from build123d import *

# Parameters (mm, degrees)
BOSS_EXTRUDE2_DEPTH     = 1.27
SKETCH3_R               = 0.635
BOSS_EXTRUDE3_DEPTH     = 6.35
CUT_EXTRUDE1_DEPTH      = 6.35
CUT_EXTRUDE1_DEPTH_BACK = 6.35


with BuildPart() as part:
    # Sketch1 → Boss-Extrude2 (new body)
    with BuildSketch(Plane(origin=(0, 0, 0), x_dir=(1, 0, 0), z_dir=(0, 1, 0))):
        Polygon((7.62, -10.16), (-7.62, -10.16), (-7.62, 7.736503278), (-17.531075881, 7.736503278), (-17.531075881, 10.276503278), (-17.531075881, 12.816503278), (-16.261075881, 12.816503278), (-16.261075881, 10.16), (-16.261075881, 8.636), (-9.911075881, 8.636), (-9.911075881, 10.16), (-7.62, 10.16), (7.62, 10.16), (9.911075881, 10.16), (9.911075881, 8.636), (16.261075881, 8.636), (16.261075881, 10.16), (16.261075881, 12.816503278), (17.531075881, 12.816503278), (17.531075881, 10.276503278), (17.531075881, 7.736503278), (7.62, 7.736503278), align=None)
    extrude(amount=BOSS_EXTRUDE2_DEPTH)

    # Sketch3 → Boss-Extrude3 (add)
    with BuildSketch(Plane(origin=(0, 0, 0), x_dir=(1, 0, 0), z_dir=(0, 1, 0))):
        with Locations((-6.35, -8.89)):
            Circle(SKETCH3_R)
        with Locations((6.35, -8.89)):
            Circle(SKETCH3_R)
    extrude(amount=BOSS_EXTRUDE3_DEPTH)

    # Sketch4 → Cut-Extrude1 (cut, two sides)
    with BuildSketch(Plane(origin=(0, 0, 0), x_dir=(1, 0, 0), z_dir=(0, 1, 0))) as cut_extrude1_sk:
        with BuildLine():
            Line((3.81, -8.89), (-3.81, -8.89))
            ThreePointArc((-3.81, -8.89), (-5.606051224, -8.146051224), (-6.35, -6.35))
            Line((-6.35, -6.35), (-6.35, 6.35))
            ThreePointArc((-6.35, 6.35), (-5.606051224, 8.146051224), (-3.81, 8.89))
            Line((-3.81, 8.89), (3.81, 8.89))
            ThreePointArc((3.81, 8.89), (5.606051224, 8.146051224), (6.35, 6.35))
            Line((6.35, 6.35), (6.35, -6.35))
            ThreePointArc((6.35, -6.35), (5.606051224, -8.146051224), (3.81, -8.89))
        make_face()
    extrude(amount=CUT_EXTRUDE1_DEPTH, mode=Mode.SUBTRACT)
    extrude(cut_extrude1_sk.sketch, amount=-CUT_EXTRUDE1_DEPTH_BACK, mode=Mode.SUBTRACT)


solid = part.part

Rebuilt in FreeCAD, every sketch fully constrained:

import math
import FreeCAD as App
import Part
import Sketcher
from FreeCAD import Vector
Q = App.Units.Quantity

doc = App.newDocument("Part")
body = doc.addObject("PartDesign::Body", "Body")

sketch1 = body.newObject("Sketcher::SketchObject", "Sketch")
sketch1.AttachmentSupport = (doc.getObject("XZ_Plane"), [""])
sketch1.MapMode = "FlatFace"
sketch1.addGeometry([
    Part.LineSegment(Vector(-7.6, 10.2, 0), Vector(7.6, 10.2, 0)),
    Part.LineSegment(Vector(7.6, 10.2, 0), Vector(7.6, -7.7, 0)),
    Part.LineSegment(Vector(7.6, -7.7, 0), Vector(17.5, -7.7, 0)),
    Part.LineSegment(Vector(17.5, -7.7, 0), Vector(17.5, -12.8, 0)),
    Part.LineSegment(Vector(17.5, -12.8, 0), Vector(16.3, -12.8, 0)),
    Part.LineSegment(Vector(16.3, -12.8, 0), Vector(16.3, -8.6, 0)),
    Part.LineSegment(Vector(16.3, -8.6, 0), Vector(9.9, -8.6, 0)),
    Part.LineSegment(Vector(9.9, -8.6, 0), Vector(9.9, -10.2, 0)),
    Part.LineSegment(Vector(9.9, -10.2, 0), Vector(-9.9, -10.2, 0)),
    Part.LineSegment(Vector(-9.9, -10.2, 0), Vector(-9.9, -8.6, 0)),
    Part.LineSegment(Vector(-9.9, -8.6, 0), Vector(-16.3, -8.6, 0)),
    Part.LineSegment(Vector(-16.3, -8.6, 0), Vector(-16.3, -12.8, 0)),
    Part.LineSegment(Vector(-16.3, -12.8, 0), Vector(-17.5, -12.8, 0)),
    Part.LineSegment(Vector(-17.5, -12.8, 0), Vector(-17.5, -7.7, 0)),
    Part.LineSegment(Vector(-17.5, -7.7, 0), Vector(-7.6, -7.7, 0)),
    Part.LineSegment(Vector(-7.6, -7.7, 0), Vector(-7.6, 10.2, 0)),
], False)
sketch1.addConstraint([
    Sketcher.Constraint("Coincident", 0, 2, 1, 1),
    Sketcher.Constraint("Coincident", 1, 2, 2, 1),
    Sketcher.Constraint("Coincident", 2, 2, 3, 1),
    Sketcher.Constraint("Coincident", 3, 2, 4, 1),
    Sketcher.Constraint("Coincident", 4, 2, 5, 1),
    Sketcher.Constraint("Coincident", 5, 2, 6, 1),
    Sketcher.Constraint("Coincident", 6, 2, 7, 1),
    Sketcher.Constraint("Coincident", 7, 2, 8, 1),
    Sketcher.Constraint("Coincident", 8, 2, 9, 1),
    Sketcher.Constraint("Coincident", 9, 2, 10, 1),
    Sketcher.Constraint("Coincident", 10, 2, 11, 1),
    Sketcher.Constraint("Coincident", 11, 2, 12, 1),
    Sketcher.Constraint("Coincident", 12, 2, 13, 1),
    Sketcher.Constraint("Coincident", 13, 2, 14, 1),
    Sketcher.Constraint("Coincident", 14, 2, 15, 1),
    Sketcher.Constraint("Coincident", 15, 2, 0, 1),
    Sketcher.Constraint("Horizontal", 0),
    Sketcher.Constraint("Vertical", 1),
    Sketcher.Constraint("Horizontal", 2),
    Sketcher.Constraint("Vertical", 3),
    Sketcher.Constraint("Horizontal", 4),
    Sketcher.Constraint("Vertical", 5),
    Sketcher.Constraint("Horizontal", 6),
    Sketcher.Constraint("Vertical", 7),
    Sketcher.Constraint("Horizontal", 8),
    Sketcher.Constraint("Vertical", 9),
    Sketcher.Constraint("Horizontal", 10),
    Sketcher.Constraint("Vertical", 11),
    Sketcher.Constraint("Horizontal", 12),
    Sketcher.Constraint("Vertical", 13),
    Sketcher.Constraint("Horizontal", 14),
    Sketcher.Constraint("Vertical", 15),
    Sketcher.Constraint("Symmetric", 6, 2, 9, 2, -2),
    Sketcher.Constraint("Symmetric", 4, 2, 11, 2, -2),
    Sketcher.Constraint("Symmetric", 2, 2, 13, 2, -2),
    Sketcher.Constraint("Equal", 2, 14),
    Sketcher.Constraint("DistanceX", 0, 1, 0, 2, Q("0.6 in")),
    Sketcher.Constraint("DistanceY", 3, 2, 3, 1, Q("0.2 in")),
    Sketcher.Constraint("DistanceX", 4, 2, 4, 1, Q("0.05 in")),
    Sketcher.Constraint("DistanceX", 6, 2, 6, 1, Q("0.25 in")),
    Sketcher.Constraint("DistanceY", 7, 2, 7, 1, Q("0.06 in")),
    Sketcher.Constraint("DistanceY", -1, 1, 0, 2, Q("0.4 in")),
    Sketcher.Constraint("DistanceY", 7, 2, -1, 1, Q("0.4 in")),
    Sketcher.Constraint("DistanceX", 2, 1, 2, 2, Q("0.3901998 in")),
    Sketcher.Constraint("DistanceY", 1, 2, 1, 1, 17.896503),
])
pad1 = body.newObject("PartDesign::Pad", "Pad")
pad1.Profile = sketch1
pad1.Length = Q("0.05 in")
pad1.Reversed = True

sketch2 = body.newObject("Sketcher::SketchObject", "Sketch001")
sketch2.AttachmentSupport = (doc.getObject("XZ_Plane"), [""])
sketch2.MapMode = "FlatFace"
sketch2.addGeometry([
    Part.Circle(Vector(-6.3, 8.9, 0), Vector(0, 0, 1), 0.6),
    Part.Circle(Vector(6.3, 8.9, 0), Vector(0, 0, 1), 0.6),
], False)
sketch2.addConstraint([
    Sketcher.Constraint("Equal", 0, 1),
    Sketcher.Constraint("Symmetric", 0, 3, 1, 3, -2),
    Sketcher.Constraint("Diameter", 0, Q("0.05 in")),
    Sketcher.Constraint("DistanceX", 0, 3, 1, 3, Q("0.5 in")),
    Sketcher.Constraint("DistanceY", -1, 1, 0, 3, Q("0.35 in")),
])
pad2 = body.newObject("PartDesign::Pad", "Pad001")
pad2.Profile = sketch2
pad2.Length = Q("0.25 in")
pad2.Reversed = True

sketch3 = body.newObject("Sketcher::SketchObject", "Sketch002")
sketch3.AttachmentSupport = (doc.getObject("XZ_Plane"), [""])
sketch3.MapMode = "FlatFace"
sketch3.addGeometry([
    Part.LineSegment(Vector(-3.8, 8.9, 0), Vector(3.8, 8.9, 0)),
    Part.ArcOfCircle(Part.Circle(Vector(3.8, 6.3, 0), Vector(0, 0, 1), 2.5), math.radians(0), math.radians(90)),
    Part.LineSegment(Vector(6.3, 6.3, 0), Vector(6.3, -6.3, 0)),
    Part.ArcOfCircle(Part.Circle(Vector(3.8, -6.3, 0), Vector(0, 0, 1), 2.5), math.radians(-90), math.radians(0)),
    Part.LineSegment(Vector(3.8, -8.9, 0), Vector(-3.8, -8.9, 0)),
    Part.ArcOfCircle(Part.Circle(Vector(-3.8, -6.3, 0), Vector(0, 0, 1), 2.5), math.radians(-180), math.radians(-90)),
    Part.LineSegment(Vector(-6.3, -6.3, 0), Vector(-6.3, 6.3, 0)),
    Part.ArcOfCircle(Part.Circle(Vector(-3.8, 6.3, 0), Vector(0, 0, 1), 2.5), math.radians(90), math.radians(180)),
], False)
sketch3.addConstraint([
    Sketcher.Constraint("Tangent", 0, 2, 1, 2),
    Sketcher.Constraint("Tangent", 1, 1, 2, 1),
    Sketcher.Constraint("Tangent", 2, 2, 3, 2),
    Sketcher.Constraint("Tangent", 3, 1, 4, 1),
    Sketcher.Constraint("Tangent", 4, 2, 5, 2),
    Sketcher.Constraint("Tangent", 5, 1, 6, 1),
    Sketcher.Constraint("Tangent", 6, 2, 7, 2),
    Sketcher.Constraint("Tangent", 7, 1, 0, 1),
    Sketcher.Constraint("Horizontal", 0),
    Sketcher.Constraint("Vertical", 2),
    Sketcher.Constraint("Horizontal", 4),
    Sketcher.Constraint("Vertical", 6),
    Sketcher.Constraint("Equal", 1, 3),
    Sketcher.Constraint("Equal", 3, 5),
    Sketcher.Constraint("Equal", 5, 7),
    Sketcher.Constraint("Symmetric", 1, 3, 5, 3, -1, 1),
    Sketcher.Constraint("Radius", 1, Q("0.1 in")),
    Sketcher.Constraint("DistanceX", 0, 1, 0, 2, Q("0.3 in")),
    Sketcher.Constraint("DistanceY", 2, 2, 2, 1, Q("0.5 in")),
])
pocket1 = body.newObject("PartDesign::Pocket", "Pocket")
pocket1.Profile = sketch3
pocket1.Type = "ThroughAll"
pocket1.Midplane = True

doc.recompute()
